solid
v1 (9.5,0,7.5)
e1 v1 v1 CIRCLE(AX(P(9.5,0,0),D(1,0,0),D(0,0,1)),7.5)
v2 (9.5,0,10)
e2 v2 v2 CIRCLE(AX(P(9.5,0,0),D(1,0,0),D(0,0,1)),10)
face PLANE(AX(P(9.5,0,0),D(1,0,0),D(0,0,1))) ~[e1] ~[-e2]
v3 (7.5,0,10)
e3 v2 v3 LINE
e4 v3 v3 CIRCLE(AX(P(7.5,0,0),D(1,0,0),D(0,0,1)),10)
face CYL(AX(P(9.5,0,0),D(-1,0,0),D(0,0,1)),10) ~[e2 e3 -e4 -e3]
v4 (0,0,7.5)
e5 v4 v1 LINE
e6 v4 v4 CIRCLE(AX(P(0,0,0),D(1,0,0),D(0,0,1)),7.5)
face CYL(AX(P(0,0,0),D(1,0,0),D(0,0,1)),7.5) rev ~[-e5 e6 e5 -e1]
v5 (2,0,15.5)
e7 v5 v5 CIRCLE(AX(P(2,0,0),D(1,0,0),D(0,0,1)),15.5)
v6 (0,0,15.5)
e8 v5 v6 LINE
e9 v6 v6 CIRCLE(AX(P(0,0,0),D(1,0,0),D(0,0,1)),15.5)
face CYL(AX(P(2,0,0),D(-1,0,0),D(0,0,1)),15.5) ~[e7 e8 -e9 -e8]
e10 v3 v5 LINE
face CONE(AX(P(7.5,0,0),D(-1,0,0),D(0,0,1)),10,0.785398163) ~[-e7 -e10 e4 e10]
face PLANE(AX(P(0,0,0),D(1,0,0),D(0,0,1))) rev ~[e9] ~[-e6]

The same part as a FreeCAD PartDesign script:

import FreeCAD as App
import Part
import Sketcher
Q = App.Units.Quantity

doc = App.newDocument("Part")
body = doc.addObject("PartDesign::Body", "Body")

# Sketch on XZ plane
sketch1 = doc.addObject("Sketcher::SketchObject", "Sketch")
body.addObject(sketch1)
sketch1.AttachmentSupport = (doc.XZ_Plane, [""])
sketch1.MapMode = "FlatFace"
sketch1.addGeometry([
    Part.LineSegment(App.Vector(0, 15.5, 0), App.Vector(0, 7.5, 0)),  # 0
    Part.LineSegment(App.Vector(0, 7.5, 0), App.Vector(9.5, 7.5, 0)),  # 1
    Part.LineSegment(App.Vector(9.5, 7.5, 0), App.Vector(9.5, 10, 0)),  # 2
    Part.LineSegment(App.Vector(9.5, 10, 0), App.Vector(7.5, 10, 0)),  # 3
    Part.LineSegment(App.Vector(7.5, 10, 0), App.Vector(2, 15.5, 0)),  # 4
    Part.LineSegment(App.Vector(2, 15.5, 0), App.Vector(0, 15.5, 0)),  # 5
], False)
sketch1.addConstraint([
    Sketcher.Constraint("Coincident", 0, 2, 1, 1),
    Sketcher.Constraint("Coincident", 1, 2, 2, 1),
    Sketcher.Constraint("Coincident", 2, 2, 3, 1),
    Sketcher.Constraint("Coincident", 3, 2, 4, 1),
    Sketcher.Constraint("Coincident", 4, 2, 5, 1),
    Sketcher.Constraint("Coincident", 5, 2, 0, 1),
    Sketcher.Constraint("Vertical", 0),
    Sketcher.Constraint("Horizontal", 1),
    Sketcher.Constraint("Vertical", 2),
    Sketcher.Constraint("Horizontal", 3),
    Sketcher.Constraint("Horizontal", 5),
    Sketcher.Constraint("PointOnObject", 0, 2, -2),
    Sketcher.Constraint("Equal", 3, 5),
    Sketcher.Constraint("DistanceX", 1, 1, 1, 2, 9.5),
    Sketcher.Constraint("DistanceX", 3, 2, 3, 1, 2.0),
    Sketcher.Constraint("DistanceY", 0, 2, 0, 1, 8.0),
    Sketcher.Constraint("Angle", 4, Q("135 deg")),
    Sketcher.Constraint("DistanceY", -1, 1, 2, 2, 10.0),
])
revolution = doc.addObject("PartDesign::Revolution", "Revolution")
body.addObject(revolution)
revolution.Profile = sketch1
revolution.ReferenceAxis = (sketch1, ["H_Axis"])
revolution.Angle = 360

doc.recompute()
